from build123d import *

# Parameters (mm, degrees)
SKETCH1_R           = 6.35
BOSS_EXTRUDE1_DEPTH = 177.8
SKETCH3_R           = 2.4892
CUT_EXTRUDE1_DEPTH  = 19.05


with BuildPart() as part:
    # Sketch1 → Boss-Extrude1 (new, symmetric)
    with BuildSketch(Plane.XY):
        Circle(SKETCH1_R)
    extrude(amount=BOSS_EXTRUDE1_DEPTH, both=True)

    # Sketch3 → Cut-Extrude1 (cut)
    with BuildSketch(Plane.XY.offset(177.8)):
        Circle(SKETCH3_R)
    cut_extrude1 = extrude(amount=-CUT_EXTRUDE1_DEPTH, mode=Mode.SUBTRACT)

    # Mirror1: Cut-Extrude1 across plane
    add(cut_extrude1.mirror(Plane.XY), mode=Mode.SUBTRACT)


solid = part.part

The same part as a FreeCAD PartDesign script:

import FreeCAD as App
import Part
import Sketcher

V = App.Vector
Q = App.Units.Quantity

doc = App.newDocument("Part")
body = doc.addObject("PartDesign::Body", "Body")

# Sketch on XY plane
sketch1 = body.newObject("Sketcher::SketchObject", "Sketch")
sketch1.AttachmentSupport = (doc.getObject("XY_Plane"), [""])
sketch1.MapMode = "FlatFace"
sketch1.addGeometry(Part.Circle(V(0, 0, 0), V(0, 0, 1), 6.35), False)
sketch1.addConstraint(Sketcher.Constraint("Coincident", 0, 3, -1, 1))
sketch1.addConstraint(Sketcher.Constraint("Diameter", 0, Q("0.5 in")))
pad1 = body.newObject("PartDesign::Pad", "Pad")
pad1.Profile = sketch1
pad1.Length = Q("14 in")
pad1.Midplane = True

# Sketch on XY plane
sketch2 = body.newObject("Sketcher::SketchObject", "Sketch001")
sketch2.AttachmentSupport = (doc.getObject("XY_Plane"), [""])
sketch2.MapMode = "FlatFace"
sketch2.AttachmentOffset = App.Placement(V(0, 0, 7 * 25.4), App.Rotation())
sketch2.addGeometry(Part.Circle(V(0, 0, 0), V(0, 0, 1), 2.4892), False)
sketch2.addConstraint(Sketcher.Constraint("Coincident", 0, 3, -1, 1))
sketch2.addConstraint(Sketcher.Constraint("Diameter", 0, Q("0.196 in")))
pocket1 = body.newObject("PartDesign::Pocket", "Pocket")
pocket1.Profile = sketch2
pocket1.Length = Q("0.75 in")
doc.recompute()

mirrored = body.newObject("PartDesign::Mirrored", "Mirrored")
mirrored.Originals = [pocket1]
mirrored.MirrorPlane = (doc.getObject("XY_Plane"), [""])
body.Tip = mirrored

doc.recompute()
